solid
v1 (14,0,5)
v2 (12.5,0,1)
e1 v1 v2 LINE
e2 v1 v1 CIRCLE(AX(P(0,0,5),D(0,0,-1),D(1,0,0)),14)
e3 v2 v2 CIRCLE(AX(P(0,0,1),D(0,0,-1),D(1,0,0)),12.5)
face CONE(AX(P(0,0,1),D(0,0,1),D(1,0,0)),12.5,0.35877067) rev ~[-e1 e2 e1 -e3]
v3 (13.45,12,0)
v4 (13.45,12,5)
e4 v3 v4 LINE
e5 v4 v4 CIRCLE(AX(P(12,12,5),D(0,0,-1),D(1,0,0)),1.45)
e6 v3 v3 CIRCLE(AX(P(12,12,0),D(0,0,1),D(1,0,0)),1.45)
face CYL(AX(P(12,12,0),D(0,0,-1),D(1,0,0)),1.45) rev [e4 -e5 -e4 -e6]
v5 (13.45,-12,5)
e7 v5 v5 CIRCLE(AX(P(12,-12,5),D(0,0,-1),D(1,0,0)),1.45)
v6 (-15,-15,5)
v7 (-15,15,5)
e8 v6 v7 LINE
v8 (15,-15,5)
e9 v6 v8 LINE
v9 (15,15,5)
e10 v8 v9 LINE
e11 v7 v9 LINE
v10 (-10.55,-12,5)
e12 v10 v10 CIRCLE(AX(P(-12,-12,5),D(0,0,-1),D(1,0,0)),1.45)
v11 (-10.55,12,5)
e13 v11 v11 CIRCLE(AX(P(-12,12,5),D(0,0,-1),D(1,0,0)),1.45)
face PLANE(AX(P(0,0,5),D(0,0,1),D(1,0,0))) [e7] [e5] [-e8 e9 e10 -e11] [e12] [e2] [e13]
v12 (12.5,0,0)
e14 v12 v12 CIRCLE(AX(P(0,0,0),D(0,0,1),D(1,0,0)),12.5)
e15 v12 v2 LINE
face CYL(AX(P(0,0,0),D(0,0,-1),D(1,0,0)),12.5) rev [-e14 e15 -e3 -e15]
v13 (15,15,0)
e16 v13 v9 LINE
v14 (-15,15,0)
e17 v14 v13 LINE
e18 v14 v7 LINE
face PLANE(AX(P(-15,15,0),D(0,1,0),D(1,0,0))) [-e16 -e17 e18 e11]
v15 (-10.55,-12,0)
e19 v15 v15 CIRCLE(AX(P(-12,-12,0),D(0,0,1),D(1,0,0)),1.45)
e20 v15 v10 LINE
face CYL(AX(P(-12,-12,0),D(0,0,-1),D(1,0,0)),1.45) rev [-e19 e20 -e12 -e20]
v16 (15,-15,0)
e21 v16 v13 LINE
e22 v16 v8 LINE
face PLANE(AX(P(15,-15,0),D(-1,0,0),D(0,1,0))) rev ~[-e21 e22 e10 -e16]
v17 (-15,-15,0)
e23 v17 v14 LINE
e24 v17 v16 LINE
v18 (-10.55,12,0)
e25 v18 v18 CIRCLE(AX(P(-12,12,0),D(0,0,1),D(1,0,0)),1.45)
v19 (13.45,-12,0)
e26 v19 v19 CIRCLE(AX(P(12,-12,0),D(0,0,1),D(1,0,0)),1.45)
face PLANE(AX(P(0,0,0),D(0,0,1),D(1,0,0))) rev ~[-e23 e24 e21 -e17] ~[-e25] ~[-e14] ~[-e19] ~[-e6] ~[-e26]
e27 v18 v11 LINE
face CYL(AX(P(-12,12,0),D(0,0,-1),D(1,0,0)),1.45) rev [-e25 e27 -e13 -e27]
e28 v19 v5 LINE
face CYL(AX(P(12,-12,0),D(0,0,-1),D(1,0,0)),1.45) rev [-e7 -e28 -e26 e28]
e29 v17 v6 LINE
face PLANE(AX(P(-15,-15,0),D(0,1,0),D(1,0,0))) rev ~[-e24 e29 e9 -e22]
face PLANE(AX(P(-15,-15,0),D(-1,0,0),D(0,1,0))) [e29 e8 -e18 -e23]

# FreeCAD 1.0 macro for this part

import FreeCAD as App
import Part
import Sketcher


def edges_at(feature, points):
    """Names of the edges that pass closest to the given points."""
    edges = feature.Shape.Edges
    near = lambda p: min(range(len(edges)), key=lambda i: edges[i].distToShape(Part.Vertex(*p))[0])
    return sorted({f"Edge{near(p) + 1}" for p in points})


def add_polygon(sketch, points):
    """Adds a closed chain of lines whose ends are joined by coincident constraints."""
    first, n = sketch.GeometryCount, len(points)
    for a, b in zip(points, points[1:] + points[:1]):
        sketch.addGeometry(Part.LineSegment(App.Vector(*a, 0), App.Vector(*b, 0)), False)
    for i in range(n):
        sketch.addConstraint(Sketcher.Constraint("Coincident", first + i, 2, first + (i + 1) % n, 1))

doc = App.newDocument("Part")
body = doc.addObject("PartDesign::Body", "Body")

sketch1 = body.newObject("Sketcher::SketchObject", "Sketch")
sketch1.AttachmentSupport = (doc.getObject("XY_Plane"), [""])
sketch1.MapMode = "FlatFace"
sketch1.addGeometry(Part.Circle(App.Vector(0, 0, 0), App.Vector(0, 0, 1), 12), False)
sketch1.addConstraint(Sketcher.Constraint("Coincident", 0, 3, -1, 1))
sketch1.addConstraint(Sketcher.Constraint("Diameter", 0, 25.0))
pad1 = body.newObject("PartDesign::Pad", "Pad")
pad1.Profile = sketch1
pad1.Length = 10
body2 = doc.addObject("PartDesign::Body", "Body001")

sketch2 = body2.newObject("Sketcher::SketchObject", "Sketch001")
sketch2.AttachmentSupport = (doc.getObject("XY_Plane001"), [""])
sketch2.MapMode = "FlatFace"
sketch2.addGeometry(Part.Circle(App.Vector(-12, 12, 0), App.Vector(0, 0, 1), 1.4), False)
sketch2.addConstraint(Sketcher.Constraint("Diameter", 0, 2.9))
sketch2.addConstraint(Sketcher.Constraint("DistanceX", 0, 3, -1, 1, 12.0))
sketch2.addConstraint(Sketcher.Constraint("DistanceY", -1, 1, 0, 3, 12.0))
pad2 = body2.newObject("PartDesign::Pad", "Pad001")
pad2.Profile = sketch2
pad2.Length = 10
body3 = doc.addObject("PartDesign::Body", "Body002")

sketch3 = body3.newObject("Sketcher::SketchObject", "Sketch002")
sketch3.AttachmentSupport = (doc.getObject("XY_Plane002"), [""])
sketch3.MapMode = "FlatFace"
sketch3.addGeometry(Part.Circle(App.Vector(12, 12, 0), App.Vector(0, 0, 1), 1.4), False)
sketch3.addConstraint(Sketcher.Constraint("Diameter", 0, 2.9))
sketch3.addConstraint(Sketcher.Constraint("DistanceX", -1, 1, 0, 3, 12.0))
sketch3.addConstraint(Sketcher.Constraint("DistanceY", -1, 1, 0, 3, 12.0))
pad3 = body3.newObject("PartDesign::Pad", "Pad002")
pad3.Profile = sketch3
pad3.Length = 10
body4 = doc.addObject("PartDesign::Body", "Body003")

sketch4 = body4.newObject("Sketcher::SketchObject", "Sketch003")
sketch4.AttachmentSupport = (doc.getObject("XY_Plane003"), [""])
sketch4.MapMode = "FlatFace"
sketch4.addGeometry(Part.Circle(App.Vector(12, -12, 0), App.Vector(0, 0, 1), 1.4), False)
sketch4.addConstraint(Sketcher.Constraint("Diameter", 0, 2.9))
sketch4.addConstraint(Sketcher.Constraint("DistanceX", -1, 1, 0, 3, 12.0))
sketch4.addConstraint(Sketcher.Constraint("DistanceY", 0, 3, -1, 1, 12.0))
pad4 = body4.newObject("PartDesign::Pad", "Pad003")
pad4.Profile = sketch4
pad4.Length = 10
body5 = doc.addObject("PartDesign::Body", "Body004")
body5.AllowCompound = True

sketch5 = body5.newObject("Sketcher::SketchObject", "Sketch004")
sketch5.AttachmentSupport = (doc.getObject("XY_Plane004"), [""])
sketch5.MapMode = "FlatFace"
sketch5.addGeometry(Part.Circle(App.Vector(-12, -12, 0), App.Vector(0, 0, 1), 1.4), False)
sketch5.addConstraint(Sketcher.Constraint("Diameter", 0, 2.9))
sketch5.addConstraint(Sketcher.Constraint("DistanceX", 0, 3, -1, 1, 12.0))
sketch5.addConstraint(Sketcher.Constraint("DistanceY", 0, 3, -1, 1, 12.0))
pad5 = body5.newObject("PartDesign::Pad", "Pad004")
pad5.Profile = sketch5
pad5.Length = 10
doc.recompute()

boolean = body5.newObject("PartDesign::Boolean", "Boolean")
boolean.Type = "Fuse"
boolean.addObjects([body2])
doc.recompute()

boolean2 = body5.newObject("PartDesign::Boolean", "Boolean001")
boolean2.Type = "Fuse"
boolean2.addObjects([body3])
doc.recompute()

boolean3 = body5.newObject("PartDesign::Boolean", "Boolean002")
boolean3.Type = "Fuse"
boolean3.addObjects([body4])
body6 = doc.addObject("PartDesign::Body", "Body005")

sketch6 = body6.newObject("Sketcher::SketchObject", "Sketch005")
sketch6.AttachmentSupport = (doc.getObject("XY_Plane005"), [""])
sketch6.MapMode = "FlatFace"
add_polygon(sketch6, [(-15, 15), (-15, -15), (15, -15), (15, 15)])
sketch6.addConstraint(Sketcher.Constraint("Vertical", 0))
sketch6.addConstraint(Sketcher.Constraint("Horizontal", 1))
sketch6.addConstraint(Sketcher.Constraint("Vertical", 2))
sketch6.addConstraint(Sketcher.Constraint("Horizontal", 3))
sketch6.addConstraint(Sketcher.Constraint("Symmetric", 0, 2, 2, 2, -1, 1))
sketch6.addConstraint(Sketcher.Constraint("Equal", 3, 0))
sketch6.addConstraint(Sketcher.Constraint("DistanceX", 1, 1, 1, 2, 30.0))
pad6 = body6.newObject("PartDesign::Pad", "Pad005")
pad6.Profile = sketch6
pad6.Length = 5
doc.recompute()

boolean4 = body6.newObject("PartDesign::Boolean", "Boolean003")
boolean4.Type = "Cut"
boolean4.addObjects([body5])
doc.recompute()

boolean5 = body6.newObject("PartDesign::Boolean", "Boolean004")
boolean5.Type = "Cut"
boolean5.addObjects([body])
doc.recompute()

chamfer = body6.newObject("PartDesign::Chamfer", "Chamfer")
chamfer.Base = (boolean5, edges_at(boolean5, [(-12.5, 0, 5)]))
chamfer.ChamferType = "Two distances"
chamfer.Size = 1.5
chamfer.Size2 = 4

doc.recompute()
